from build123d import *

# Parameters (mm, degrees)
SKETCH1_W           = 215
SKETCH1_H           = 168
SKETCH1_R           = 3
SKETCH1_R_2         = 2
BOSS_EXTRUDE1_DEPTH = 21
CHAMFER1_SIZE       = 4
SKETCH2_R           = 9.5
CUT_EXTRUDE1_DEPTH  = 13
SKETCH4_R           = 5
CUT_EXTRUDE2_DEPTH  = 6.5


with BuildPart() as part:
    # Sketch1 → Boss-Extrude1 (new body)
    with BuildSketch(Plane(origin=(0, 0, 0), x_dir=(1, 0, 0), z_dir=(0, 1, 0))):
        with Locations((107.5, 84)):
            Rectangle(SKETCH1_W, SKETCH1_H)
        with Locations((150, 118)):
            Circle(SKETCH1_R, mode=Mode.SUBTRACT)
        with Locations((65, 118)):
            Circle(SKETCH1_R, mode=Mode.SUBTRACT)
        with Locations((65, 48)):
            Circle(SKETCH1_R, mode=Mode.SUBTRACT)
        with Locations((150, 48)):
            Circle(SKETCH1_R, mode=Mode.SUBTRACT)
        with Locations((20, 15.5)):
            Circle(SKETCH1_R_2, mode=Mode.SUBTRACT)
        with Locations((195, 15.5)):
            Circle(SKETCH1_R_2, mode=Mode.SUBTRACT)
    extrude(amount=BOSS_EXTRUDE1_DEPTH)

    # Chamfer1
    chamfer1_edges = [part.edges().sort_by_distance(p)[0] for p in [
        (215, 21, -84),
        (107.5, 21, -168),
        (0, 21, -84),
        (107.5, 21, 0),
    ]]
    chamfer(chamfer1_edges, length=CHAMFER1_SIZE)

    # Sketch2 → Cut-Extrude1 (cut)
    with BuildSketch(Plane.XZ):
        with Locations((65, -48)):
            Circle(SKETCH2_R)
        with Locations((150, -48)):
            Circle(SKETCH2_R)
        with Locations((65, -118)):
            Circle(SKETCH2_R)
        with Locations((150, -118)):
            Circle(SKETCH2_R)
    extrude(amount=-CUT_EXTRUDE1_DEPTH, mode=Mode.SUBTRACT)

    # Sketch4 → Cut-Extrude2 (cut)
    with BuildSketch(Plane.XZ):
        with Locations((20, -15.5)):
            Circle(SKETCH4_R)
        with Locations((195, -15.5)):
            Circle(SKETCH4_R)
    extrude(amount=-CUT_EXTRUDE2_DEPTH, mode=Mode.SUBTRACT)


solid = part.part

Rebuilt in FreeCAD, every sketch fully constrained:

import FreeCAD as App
import Part
import Sketcher
Q = App.Units.Quantity


def edges_at(feature, points):
    """Names of the edges that pass closest to the given points."""
    edges = feature.Shape.Edges
    near = lambda p: min(range(len(edges)), key=lambda i: edges[i].distToShape(Part.Vertex(*p))[0])
    return sorted({f"Edge{near(p) + 1}" for p in points})


def add_polygon(sketch, points):
    """Adds a closed chain of lines whose ends are joined by coincident constraints."""
    first, n = sketch.GeometryCount, len(points)
    for a, b in zip(points, points[1:] + points[:1]):
        sketch.addGeometry(Part.LineSegment(App.Vector(*a, 0), App.Vector(*b, 0)), False)
    for i in range(n):
        sketch.addConstraint(Sketcher.Constraint("Coincident", first + i, 2, first + (i + 1) % n, 1))

doc = App.newDocument("Part")
body = doc.addObject("PartDesign::Body", "Body")

sketch1 = body.newObject("Sketcher::SketchObject", "Sketch")
sketch1.AttachmentSupport = (doc.getObject("XZ_Plane"), [""])
sketch1.MapMode = "FlatFace"
add_polygon(sketch1, [(0, -168), (0, 0), (215, 0), (215, -168)])
sketch1.addGeometry(Part.Circle(App.Vector(20, -15.5, 0), App.Vector(0, 0, 1), 2), False)
sketch1.addGeometry(Part.Circle(App.Vector(65, -48, 0), App.Vector(0, 0, 1), 3), False)
sketch1.addGeometry(Part.Circle(App.Vector(195, -15.5, 0), App.Vector(0, 0, 1), 2), False)
sketch1.addGeometry(Part.Circle(App.Vector(150, -48, 0), App.Vector(0, 0, 1), 3), False)
sketch1.addGeometry(Part.Circle(App.Vector(65, -118, 0), App.Vector(0, 0, 1), 3), False)
sketch1.addGeometry(Part.Circle(App.Vector(150, -118, 0), App.Vector(0, 0, 1), 3), False)
sketch1.addConstraint([
    Sketcher.Constraint("Vertical", 0),
    Sketcher.Constraint("Horizontal", 1),
    Sketcher.Constraint("Vertical", 2),
    Sketcher.Constraint("Horizontal", 3),
    Sketcher.Constraint("Coincident", 0, 2, -1, 1),
    Sketcher.Constraint("Equal", 4, 6),
    Sketcher.Constraint("Equal", 5, 7),
    Sketcher.Constraint("Equal", 7, 8),
    Sketcher.Constraint("Equal", 8, 9),
    Sketcher.Constraint("Horizontal", 4, 3, 6, 3),
    Sketcher.Constraint("Horizontal", 5, 3, 7, 3),
    Sketcher.Constraint("Horizontal", 8, 3, 9, 3),
    Sketcher.Constraint("Vertical", 5, 3, 8, 3),
    Sketcher.Constraint("Vertical", 7, 3, 9, 3),
    Sketcher.Constraint("Diameter", 4, Q("4 mm")),
    Sketcher.Constraint("Diameter", 5, Q("6 mm")),
    Sketcher.Constraint("DistanceX", 1, 1, 1, 2, Q("215 mm")),
    Sketcher.Constraint("DistanceY", 0, 1, 0, 2, Q("168 mm")),
    Sketcher.Constraint("DistanceX", -1, 1, 4, 3, Q("20 mm")),
    Sketcher.Constraint("DistanceX", -1, 1, 5, 3, Q("65 mm")),
    Sketcher.Constraint("DistanceY", 5, 3, -1, 1, Q("48 mm")),
    Sketcher.Constraint("DistanceX", -1, 1, 6, 3, Q("195 mm")),
    Sketcher.Constraint("DistanceX", -1, 1, 7, 3, Q("150 mm")),
    Sketcher.Constraint("DistanceY", 8, 3, -1, 1, Q("118 mm")),
    Sketcher.Constraint("DistanceY", 4, 3, -1, 1, Q("15.5 mm")),
])
pad1 = body.newObject("PartDesign::Pad", "Pad")
pad1.Profile = sketch1
pad1.Length = 21
pad1.Reversed = True
doc.recompute()

chamfer = body.newObject("PartDesign::Chamfer", "Chamfer")
chamfer.Base = (pad1, edges_at(pad1, [
    (215, 21, -84),
    (107.5, 21, -168),
    (0, 21, -84),
    (107.5, 21, 0),
]))
chamfer.Size = 4

sketch2 = body.newObject("Sketcher::SketchObject", "Sketch001")
sketch2.AttachmentSupport = (doc.getObject("XZ_Plane"), [""])
sketch2.MapMode = "FlatFace"
sketch2.addGeometry([
    Part.Circle(App.Vector(65, -48, 0), App.Vector(0, 0, 1), 10),
    Part.Circle(App.Vector(150, -48, 0), App.Vector(0, 0, 1), 10),
    Part.Circle(App.Vector(65, -118, 0), App.Vector(0, 0, 1), 10),
    Part.Circle(App.Vector(150, -118, 0), App.Vector(0, 0, 1), 10),
], False)
sketch2.addConstraint([
    Sketcher.Constraint("Equal", 0, 1),
    Sketcher.Constraint("Equal", 1, 2),
    Sketcher.Constraint("Equal", 2, 3),
    Sketcher.Constraint("Horizontal", 0, 3, 1, 3),
    Sketcher.Constraint("Horizontal", 2, 3, 3, 3),
    Sketcher.Constraint("Vertical", 0, 3, 2, 3),
    Sketcher.Constraint("Vertical", 1, 3, 3, 3),
    Sketcher.Constraint("Diameter", 0, Q("19 mm")),
    Sketcher.Constraint("DistanceX", -1, 1, 0, 3, Q("65 mm")),
    Sketcher.Constraint("DistanceY", 0, 3, -1, 1, Q("48 mm")),
    Sketcher.Constraint("DistanceX", -1, 1, 1, 3, Q("150 mm")),
    Sketcher.Constraint("DistanceY", 2, 3, -1, 1, Q("118 mm")),
])
pocket1 = body.newObject("PartDesign::Pocket", "Pocket")
pocket1.Profile = sketch2
pocket1.Length = 13

sketch3 = body.newObject("Sketcher::SketchObject", "Sketch002")
sketch3.AttachmentSupport = (doc.getObject("XZ_Plane"), [""])
sketch3.MapMode = "FlatFace"
sketch3.addGeometry([
    Part.Circle(App.Vector(20, -16, 0), App.Vector(0, 0, 1), 5),
    Part.Circle(App.Vector(195, -16, 0), App.Vector(0, 0, 1), 5),
], False)
sketch3.addConstraint([
    Sketcher.Constraint("Equal", 0, 1),
    Sketcher.Constraint("Horizontal", 0, 3, 1, 3),
    Sketcher.Constraint("Diameter", 0, Q("10 mm")),
    Sketcher.Constraint("DistanceX", -1, 1, 0, 3, Q("20 mm")),
    Sketcher.Constraint("DistanceX", -1, 1, 1, 3, Q("195 mm")),
    Sketcher.Constraint("DistanceY", 0, 3, -1, 1, Q("15.5 mm")),
])
pocket2 = body.newObject("PartDesign::Pocket", "Pocket001")
pocket2.Profile = sketch3
pocket2.Length = 6.5

doc.recompute()
